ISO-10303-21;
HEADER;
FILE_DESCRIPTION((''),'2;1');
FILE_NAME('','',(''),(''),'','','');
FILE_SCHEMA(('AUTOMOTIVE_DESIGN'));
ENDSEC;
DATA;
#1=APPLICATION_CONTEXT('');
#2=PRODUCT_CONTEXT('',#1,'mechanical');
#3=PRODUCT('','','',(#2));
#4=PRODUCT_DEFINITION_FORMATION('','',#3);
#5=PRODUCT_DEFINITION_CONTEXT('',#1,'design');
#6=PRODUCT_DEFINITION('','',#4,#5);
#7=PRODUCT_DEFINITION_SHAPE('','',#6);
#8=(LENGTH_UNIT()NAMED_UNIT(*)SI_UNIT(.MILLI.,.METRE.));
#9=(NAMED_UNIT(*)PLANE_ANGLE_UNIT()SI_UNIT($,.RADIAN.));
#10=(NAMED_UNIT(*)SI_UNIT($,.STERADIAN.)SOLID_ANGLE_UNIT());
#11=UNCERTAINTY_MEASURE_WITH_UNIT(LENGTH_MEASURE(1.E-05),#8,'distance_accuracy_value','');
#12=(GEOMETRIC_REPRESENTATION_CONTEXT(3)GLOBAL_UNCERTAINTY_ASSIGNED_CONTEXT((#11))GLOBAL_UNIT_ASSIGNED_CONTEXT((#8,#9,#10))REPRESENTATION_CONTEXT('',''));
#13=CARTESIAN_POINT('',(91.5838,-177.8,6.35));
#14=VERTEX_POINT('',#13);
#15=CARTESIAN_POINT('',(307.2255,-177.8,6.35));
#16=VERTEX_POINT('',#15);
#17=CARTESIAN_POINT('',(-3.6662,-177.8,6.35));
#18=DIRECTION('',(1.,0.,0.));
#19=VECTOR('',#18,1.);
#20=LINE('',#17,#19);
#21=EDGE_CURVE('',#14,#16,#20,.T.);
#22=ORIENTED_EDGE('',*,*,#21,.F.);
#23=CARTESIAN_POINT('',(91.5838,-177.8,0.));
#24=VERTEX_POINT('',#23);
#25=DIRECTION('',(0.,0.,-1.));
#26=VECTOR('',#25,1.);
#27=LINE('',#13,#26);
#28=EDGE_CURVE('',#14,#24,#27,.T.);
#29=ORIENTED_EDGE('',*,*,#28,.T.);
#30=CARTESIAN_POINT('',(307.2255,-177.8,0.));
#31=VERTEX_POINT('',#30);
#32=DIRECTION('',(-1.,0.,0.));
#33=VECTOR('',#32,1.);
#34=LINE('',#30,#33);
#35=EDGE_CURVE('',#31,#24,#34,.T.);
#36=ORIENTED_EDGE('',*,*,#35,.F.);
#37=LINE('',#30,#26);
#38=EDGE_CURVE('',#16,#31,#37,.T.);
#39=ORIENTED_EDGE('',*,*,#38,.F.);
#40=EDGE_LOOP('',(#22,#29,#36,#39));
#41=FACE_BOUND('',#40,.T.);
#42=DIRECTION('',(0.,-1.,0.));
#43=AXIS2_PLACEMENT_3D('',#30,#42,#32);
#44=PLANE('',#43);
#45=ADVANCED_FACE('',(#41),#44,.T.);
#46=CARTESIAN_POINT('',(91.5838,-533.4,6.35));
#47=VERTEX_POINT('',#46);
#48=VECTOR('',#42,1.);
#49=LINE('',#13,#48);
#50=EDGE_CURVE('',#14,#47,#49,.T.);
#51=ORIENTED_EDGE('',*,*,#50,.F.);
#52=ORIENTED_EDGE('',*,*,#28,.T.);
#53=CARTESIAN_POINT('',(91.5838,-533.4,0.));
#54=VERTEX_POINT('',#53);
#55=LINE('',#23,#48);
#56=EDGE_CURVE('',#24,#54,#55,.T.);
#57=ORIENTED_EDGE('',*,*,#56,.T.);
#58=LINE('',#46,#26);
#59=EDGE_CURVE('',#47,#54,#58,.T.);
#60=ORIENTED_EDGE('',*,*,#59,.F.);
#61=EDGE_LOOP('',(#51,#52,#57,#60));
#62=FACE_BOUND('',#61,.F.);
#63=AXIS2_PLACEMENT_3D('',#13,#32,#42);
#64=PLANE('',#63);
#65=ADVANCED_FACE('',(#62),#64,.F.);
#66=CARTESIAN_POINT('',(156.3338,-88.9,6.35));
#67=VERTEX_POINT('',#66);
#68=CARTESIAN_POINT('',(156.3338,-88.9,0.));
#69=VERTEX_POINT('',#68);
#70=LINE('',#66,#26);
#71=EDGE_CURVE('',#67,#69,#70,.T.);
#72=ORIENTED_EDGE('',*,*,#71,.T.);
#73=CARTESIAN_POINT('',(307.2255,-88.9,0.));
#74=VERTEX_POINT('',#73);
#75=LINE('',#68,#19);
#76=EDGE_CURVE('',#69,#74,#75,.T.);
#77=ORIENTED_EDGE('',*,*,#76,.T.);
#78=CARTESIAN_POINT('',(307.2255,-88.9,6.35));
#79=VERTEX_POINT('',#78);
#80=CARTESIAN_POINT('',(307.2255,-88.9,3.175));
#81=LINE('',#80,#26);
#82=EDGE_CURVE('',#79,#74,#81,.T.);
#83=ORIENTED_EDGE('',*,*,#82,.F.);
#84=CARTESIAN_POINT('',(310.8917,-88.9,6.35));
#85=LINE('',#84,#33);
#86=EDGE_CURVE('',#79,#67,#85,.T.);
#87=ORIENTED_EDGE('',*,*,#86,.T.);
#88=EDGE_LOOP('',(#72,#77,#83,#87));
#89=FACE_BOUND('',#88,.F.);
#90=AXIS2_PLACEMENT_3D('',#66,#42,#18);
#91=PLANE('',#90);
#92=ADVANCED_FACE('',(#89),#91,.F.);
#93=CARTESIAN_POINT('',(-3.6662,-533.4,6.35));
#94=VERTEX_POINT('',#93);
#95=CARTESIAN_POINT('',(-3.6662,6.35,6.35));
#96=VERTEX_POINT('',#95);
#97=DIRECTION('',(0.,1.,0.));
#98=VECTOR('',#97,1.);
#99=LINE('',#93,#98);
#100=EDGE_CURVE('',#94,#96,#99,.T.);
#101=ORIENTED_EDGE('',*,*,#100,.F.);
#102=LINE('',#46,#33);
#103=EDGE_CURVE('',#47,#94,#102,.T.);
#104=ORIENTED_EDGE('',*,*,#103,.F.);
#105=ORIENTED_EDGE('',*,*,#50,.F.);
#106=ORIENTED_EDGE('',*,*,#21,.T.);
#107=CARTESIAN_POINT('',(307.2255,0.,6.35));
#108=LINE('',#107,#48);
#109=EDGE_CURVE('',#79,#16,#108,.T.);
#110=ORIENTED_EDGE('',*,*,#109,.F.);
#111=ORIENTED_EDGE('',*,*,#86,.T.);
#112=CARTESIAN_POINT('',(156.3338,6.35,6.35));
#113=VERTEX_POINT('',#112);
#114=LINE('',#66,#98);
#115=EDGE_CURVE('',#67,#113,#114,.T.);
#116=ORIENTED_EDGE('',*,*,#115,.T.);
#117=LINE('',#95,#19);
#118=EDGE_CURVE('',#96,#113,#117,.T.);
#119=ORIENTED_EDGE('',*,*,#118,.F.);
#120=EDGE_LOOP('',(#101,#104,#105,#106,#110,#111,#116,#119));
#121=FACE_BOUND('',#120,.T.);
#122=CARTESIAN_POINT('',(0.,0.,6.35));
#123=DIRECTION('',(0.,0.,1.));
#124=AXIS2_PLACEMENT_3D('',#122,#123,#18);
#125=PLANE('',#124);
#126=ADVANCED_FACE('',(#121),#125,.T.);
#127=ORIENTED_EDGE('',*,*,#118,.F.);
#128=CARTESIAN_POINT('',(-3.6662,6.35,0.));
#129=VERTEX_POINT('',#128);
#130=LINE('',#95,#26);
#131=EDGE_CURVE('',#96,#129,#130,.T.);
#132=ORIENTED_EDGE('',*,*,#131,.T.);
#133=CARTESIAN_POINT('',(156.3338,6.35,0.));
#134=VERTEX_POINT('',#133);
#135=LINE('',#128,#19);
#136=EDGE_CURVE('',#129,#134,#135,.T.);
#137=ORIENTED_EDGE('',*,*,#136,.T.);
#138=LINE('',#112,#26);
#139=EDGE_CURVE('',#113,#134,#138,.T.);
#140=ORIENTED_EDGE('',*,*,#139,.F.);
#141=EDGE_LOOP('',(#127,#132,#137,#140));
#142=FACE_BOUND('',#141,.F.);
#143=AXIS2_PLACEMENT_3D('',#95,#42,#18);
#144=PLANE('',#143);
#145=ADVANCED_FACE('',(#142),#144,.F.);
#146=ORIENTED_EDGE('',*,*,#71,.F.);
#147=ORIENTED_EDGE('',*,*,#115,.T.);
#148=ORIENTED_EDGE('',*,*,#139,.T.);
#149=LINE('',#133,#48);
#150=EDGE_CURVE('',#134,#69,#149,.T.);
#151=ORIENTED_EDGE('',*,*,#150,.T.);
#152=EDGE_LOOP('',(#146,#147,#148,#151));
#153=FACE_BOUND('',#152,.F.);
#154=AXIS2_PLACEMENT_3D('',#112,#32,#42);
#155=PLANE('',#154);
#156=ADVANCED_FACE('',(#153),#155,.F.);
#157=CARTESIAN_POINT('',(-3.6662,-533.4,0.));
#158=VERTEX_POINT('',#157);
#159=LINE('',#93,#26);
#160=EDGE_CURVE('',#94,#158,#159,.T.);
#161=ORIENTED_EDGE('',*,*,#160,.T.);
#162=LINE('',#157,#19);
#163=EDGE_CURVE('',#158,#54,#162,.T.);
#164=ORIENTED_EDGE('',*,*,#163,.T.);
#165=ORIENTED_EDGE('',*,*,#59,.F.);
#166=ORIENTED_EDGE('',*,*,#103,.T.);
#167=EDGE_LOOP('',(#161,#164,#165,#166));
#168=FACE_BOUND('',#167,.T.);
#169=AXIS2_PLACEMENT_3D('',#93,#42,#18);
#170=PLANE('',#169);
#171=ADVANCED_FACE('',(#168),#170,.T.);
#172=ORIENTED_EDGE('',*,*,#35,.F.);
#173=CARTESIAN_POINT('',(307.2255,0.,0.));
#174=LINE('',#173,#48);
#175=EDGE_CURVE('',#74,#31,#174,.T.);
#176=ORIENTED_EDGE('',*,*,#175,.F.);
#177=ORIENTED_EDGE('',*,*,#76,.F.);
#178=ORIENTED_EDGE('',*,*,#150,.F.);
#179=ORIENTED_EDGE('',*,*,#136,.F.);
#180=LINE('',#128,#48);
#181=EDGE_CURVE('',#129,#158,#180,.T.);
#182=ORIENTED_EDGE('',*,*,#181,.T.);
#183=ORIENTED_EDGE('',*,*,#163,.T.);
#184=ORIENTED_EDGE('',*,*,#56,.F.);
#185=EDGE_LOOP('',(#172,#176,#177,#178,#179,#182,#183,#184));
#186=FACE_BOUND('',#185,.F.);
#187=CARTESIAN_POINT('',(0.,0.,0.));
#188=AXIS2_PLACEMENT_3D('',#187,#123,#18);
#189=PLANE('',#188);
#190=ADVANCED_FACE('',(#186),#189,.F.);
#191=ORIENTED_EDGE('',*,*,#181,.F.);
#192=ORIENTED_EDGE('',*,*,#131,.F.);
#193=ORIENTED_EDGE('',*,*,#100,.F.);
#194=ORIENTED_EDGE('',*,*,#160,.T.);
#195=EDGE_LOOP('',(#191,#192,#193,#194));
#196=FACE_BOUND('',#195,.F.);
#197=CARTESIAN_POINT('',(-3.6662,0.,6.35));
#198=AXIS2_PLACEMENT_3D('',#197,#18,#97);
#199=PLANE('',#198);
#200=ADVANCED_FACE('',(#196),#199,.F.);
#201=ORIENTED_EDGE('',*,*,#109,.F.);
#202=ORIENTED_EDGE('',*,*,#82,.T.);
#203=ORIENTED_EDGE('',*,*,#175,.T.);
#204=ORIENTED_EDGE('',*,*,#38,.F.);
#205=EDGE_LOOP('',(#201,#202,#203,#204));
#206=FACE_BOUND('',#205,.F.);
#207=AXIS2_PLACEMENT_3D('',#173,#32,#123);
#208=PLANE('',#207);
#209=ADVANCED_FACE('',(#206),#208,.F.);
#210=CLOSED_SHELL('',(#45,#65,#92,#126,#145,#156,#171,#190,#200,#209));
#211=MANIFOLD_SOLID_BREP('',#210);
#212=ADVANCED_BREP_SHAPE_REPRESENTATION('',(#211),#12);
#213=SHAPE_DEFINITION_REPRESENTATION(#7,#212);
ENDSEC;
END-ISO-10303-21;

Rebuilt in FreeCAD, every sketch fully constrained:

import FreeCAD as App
import Part
import Sketcher

V = App.Vector
Q = App.Units.Quantity


def add_polygon(sketch, points):
    """Adds a closed chain of lines whose ends are joined by coincident constraints."""
    first, n = sketch.GeometryCount, len(points)
    for a, b in zip(points, points[1:] + points[:1]):
        sketch.addGeometry(Part.LineSegment(App.Vector(*a, 0), App.Vector(*b, 0)), False)
    for i in range(n):
        sketch.addConstraint(Sketcher.Constraint("Coincident", first + i, 2, first + (i + 1) % n, 1))

doc = App.newDocument("Part")
body = doc.addObject("PartDesign::Body", "Body")

# Sketch on XY plane
sketch1 = body.newObject("Sketcher::SketchObject", "Sketch")
sketch1.AttachmentSupport = (doc.getObject("XY_Plane"), [""])
sketch1.MapMode = "FlatFace"
add_polygon(sketch1, [(307.2255, 0), (0, 0), (0, -177.8), (307.2255, -177.8)])  # lines 0-3
sketch1.addConstraint([
    Sketcher.Constraint("Horizontal", 0),
    Sketcher.Constraint("Vertical", 1),
    Sketcher.Constraint("Horizontal", 2),
    Sketcher.Constraint("Vertical", 3),
    Sketcher.Constraint("Coincident", 0, 2, -1, 1),
    Sketcher.Constraint("DistanceY", 1, 2, 1, 1, Q("7 in")),
    Sketcher.Constraint("DistanceX", 0, 2, 0, 1, Q("12.0955 in")),
])
pad1 = body.newObject("PartDesign::Pad", "Pad")
pad1.Profile = sketch1
pad1.Length = Q("0.25 in")

# Sketch on XZ plane
sketch2 = body.newObject("Sketcher::SketchObject", "Sketch001")
sketch2.AttachmentSupport = (doc.getObject("XZ_Plane"), [""])
sketch2.MapMode = "FlatFace"
add_polygon(sketch2, [(-3.6662, 6.35), (0, 6.35), (0, 0)])  # lines 0-2
add_polygon(sketch2, [(307.2255, 0), (307.2255, 6.35), (310.8917, 6.35)])  # lines 3-5
sketch2.addConstraint([
    Sketcher.Constraint("Horizontal", 0),
    Sketcher.Constraint("Vertical", 1),
    Sketcher.Constraint("Vertical", 3),
    Sketcher.Constraint("Horizontal", 4),
    Sketcher.Constraint("Coincident", 1, 2, -1, 1),
    Sketcher.Constraint("PointOnObject", 5, 2, -1),
    Sketcher.Constraint("Horizontal", 2, 2, 3, 2),
    Sketcher.Constraint("Equal", 0, 4),
    Sketcher.Constraint("Angle", 2, Q("120.0002 deg")),
    Sketcher.Constraint("DistanceY", 1, 2, 1, 1, Q("0.25 in")),
    Sketcher.Constraint("DistanceX", -1, 1, 3, 2, Q("12.0955 in")),
])
pad2 = body.newObject("PartDesign::Pad", "Pad001")
pad2.Profile = sketch2
pad2.Length = Q("7 in")

# Sketch on XY plane
sketch3 = body.newObject("Sketcher::SketchObject", "Sketch002")
sketch3.AttachmentSupport = (doc.getObject("XY_Plane"), [""])
sketch3.MapMode = "FlatFace"
sketch3.AttachmentOffset = App.Placement(V(0, 0, 0.25 * 25.4), App.Rotation())
add_polygon(sketch3, [(156.3338, 0), (156.3338, -88.9), (281.3338, -88.9), (281.3338, 0)])  # lines 0-3
sketch3.addConstraint([
    Sketcher.Constraint("Vertical", 0),
    Sketcher.Constraint("Horizontal", 1),
    Sketcher.Constraint("Vertical", 2),
    Sketcher.Constraint("Horizontal", 3),
    Sketcher.Constraint("PointOnObject", 2, 2, -1),
    Sketcher.Constraint("DistanceY", 0, 2, 0, 1, Q("3.5 in")),
    Sketcher.Constraint("DistanceX", 1, 1, 1, 2, 125.0),
    Sketcher.Constraint("DistanceX", -1, 1, 0, 2, 156.3338),
])
pocket1 = body.newObject("PartDesign::Pocket", "Pocket")
pocket1.Profile = sketch3
pocket1.Type = "ThroughAll"

# Sketch on XY plane
sketch4 = body.newObject("Sketcher::SketchObject", "Sketch003")
sketch4.AttachmentSupport = (doc.getObject("XY_Plane"), [""])
sketch4.MapMode = "FlatFace"
sketch4.AttachmentOffset = App.Placement(V(0, 0, 0.25 * 25.4), App.Rotation())
add_polygon(sketch4, [(91.5838, -533.4), (91.5838, -177.8), (-3.6662, -177.8), (-3.6662, -533.4)])  # lines 0-3
sketch4.addConstraint([
    Sketcher.Constraint("Vertical", 0),
    Sketcher.Constraint("Horizontal", 1),
    Sketcher.Constraint("Vertical", 2),
    Sketcher.Constraint("Horizontal", 3),
    Sketcher.Constraint("DistanceY", 0, 1, 0, 2, Q("14 in")),
    Sketcher.Constraint("DistanceX", 1, 2, 1, 1, Q("3.75 in")),
    Sketcher.Constraint("DistanceY", 0, 2, -1, 1, Q("7 in")),
    Sketcher.Constraint("DistanceX", -1, 1, 0, 2, 91.5838),
])
pad3 = body.newObject("PartDesign::Pad", "Pad002")
pad3.Profile = sketch4
pad3.Length = Q("0.3937008 in")
pad3.Reversed = True

# Sketch on XZ plane
sketch5 = body.newObject("Sketcher::SketchObject", "Sketch004")
sketch5.AttachmentSupport = (doc.getObject("XZ_Plane"), [""])
sketch5.MapMode = "FlatFace"
sketch5.AttachmentOffset = App.Placement(V(0, 0, 7 * 25.4), App.Rotation())
add_polygon(sketch5, [(-3.6662, -3.65), (-3.6662, 6.35), (0, 0), (91.5838, 0), (91.5838, -3.65)])  # lines 0-4
sketch5.addConstraint([
    Sketcher.Constraint("Vertical", 0),
    Sketcher.Constraint("Horizontal", 2),
    Sketcher.Constraint("Vertical", 3),
    Sketcher.Constraint("Horizontal", 4),
    Sketcher.Constraint("Coincident", 1, 2, -1, 1),
    Sketcher.Constraint("Angle", 1, Q("-59.9998 deg")),
    Sketcher.Constraint("DistanceX", 4, 2, 4, 1, Q("3.75 in")),
    Sketcher.Constraint("DistanceY", -1, 1, 0, 2, Q("0.25 in")),
    Sketcher.Constraint("DistanceY", 0, 1, 0, 2, Q("0.3937 in")),
])
pocket2 = body.newObject("PartDesign::Pocket", "Pocket001")
pocket2.Profile = sketch5
pocket2.Type = "ThroughAll"
pocket2.Reversed = True

# Sketch on XY plane
sketch6 = body.newObject("Sketcher::SketchObject", "Sketch005")
sketch6.AttachmentSupport = (doc.getObject("XY_Plane"), [""])
sketch6.MapMode = "FlatFace"
sketch6.AttachmentOffset = App.Placement(V(0, 0, 0.25 * 25.4), App.Rotation())
add_polygon(sketch6, [(310.8917, -88.9), (310.8917, 0), (281.3338, 0), (281.3338, -88.9)])  # lines 0-3
sketch6.addConstraint([
    Sketcher.Constraint("Vertical", 0),
    Sketcher.Constraint("Horizontal", 1),
    Sketcher.Constraint("Vertical", 2),
    Sketcher.Constraint("Horizontal", 3),
    Sketcher.Constraint("PointOnObject", 0, 2, -1),
    Sketcher.Constraint("DistanceY", 0, 1, 0, 2, Q("3.5 in")),
    Sketcher.Constraint("DistanceX", 1, 2, 1, 1, Q("1.1637 in")),
    Sketcher.Constraint("DistanceX", -1, 1, 0, 2, 310.8917),
])
pocket3 = body.newObject("PartDesign::Pocket", "Pocket002")
pocket3.Profile = sketch6
pocket3.Type = "ThroughAll"

# Sketch on XZ plane
sketch7 = body.newObject("Sketcher::SketchObject", "Sketch006")
sketch7.AttachmentSupport = (doc.getObject("XZ_Plane"), [""])
sketch7.MapMode = "FlatFace"
add_polygon(sketch7, [(0, 6.35), (0, 0), (-3.6662, 6.35)])  # lines 0-2
add_polygon(sketch7, [(310.8917, 6.35), (307.2255, 0), (307.2255, 6.35)])  # lines 3-5
sketch7.addConstraint([
    Sketcher.Constraint("Vertical", 0),
    Sketcher.Constraint("Horizontal", 2),
    Sketcher.Constraint("Vertical", 4),
    Sketcher.Constraint("Horizontal", 5),
    Sketcher.Constraint("Coincident", 0, 2, -1, 1),
    Sketcher.Constraint("PointOnObject", 3, 2, -1),
    Sketcher.Constraint("Horizontal", 2, 2, 4, 2),
    Sketcher.Constraint("Equal", 2, 5),
    Sketcher.Constraint("Angle", 1, Q("120.0002 deg")),
    Sketcher.Constraint("DistanceY", 0, 2, 0, 1, Q("0.25 in")),
    Sketcher.Constraint("DistanceX", -1, 1, 3, 2, Q("12.0955 in")),
])
pocket4 = body.newObject("PartDesign::Pocket", "Pocket003")
pocket4.Profile = sketch7
pocket4.Type = "ThroughAll"
pocket4.Reversed = True

# Sketch on XY plane
sketch8 = body.newObject("Sketcher::SketchObject", "Sketch007")
sketch8.AttachmentSupport = (doc.getObject("XY_Plane"), [""])
sketch8.MapMode = "FlatFace"
sketch8.AttachmentOffset = App.Placement(V(0, 0, 0.25 * 25.4), App.Rotation())
add_polygon(sketch8, [(0, -533.4), (0, 0), (-3.6662, 0), (-3.6662, -533.4)])  # lines 0-3
sketch8.addConstraint([
    Sketcher.Constraint("Vertical", 0),
    Sketcher.Constraint("Horizontal", 1),
    Sketcher.Constraint("Vertical", 2),
    Sketcher.Constraint("Horizontal", 3),
    Sketcher.Constraint("Coincident", 0, 2, -1, 1),
    Sketcher.Constraint("DistanceY", 0, 1, 0, 2, Q("21 in")),
    Sketcher.Constraint("DistanceX", 1, 2, 1, 1, 3.6662),
])
pad4 = body.newObject("PartDesign::Pad", "Pad003")
pad4.Profile = sketch8
pad4.Length = Q("0.25 in")
pad4.Reversed = True

# Sketch on XY plane
sketch9 = body.newObject("Sketcher::SketchObject", "Sketch008")
sketch9.AttachmentSupport = (doc.getObject("XY_Plane"), [""])
sketch9.MapMode = "FlatFace"
sketch9.AttachmentOffset = App.Placement(V(0, 0, 0.25 * 25.4), App.Rotation())
add_polygon(sketch9, [(-3.6662, 6.35), (-3.6662, 0), (156.3338, 0), (156.3338, 6.35)])  # lines 0-3
sketch9.addConstraint([
    Sketcher.Constraint("Vertical", 0),
    Sketcher.Constraint("Horizontal", 1),
    Sketcher.Constraint("Vertical", 2),
    Sketcher.Constraint("Horizontal", 3),
    Sketcher.Constraint("PointOnObject", 0, 2, -1),
    Sketcher.Constraint("DistanceY", 0, 2, 0, 1, Q("0.25 in")),
    Sketcher.Constraint("DistanceX", 1, 1, 1, 2, 160.0),
    Sketcher.Constraint("DistanceX", 0, 2, -1, 1, 3.6662),
])
pad5 = body.newObject("PartDesign::Pad", "Pad004")
pad5.Profile = sketch9
pad5.Length = Q("0.25 in")
pad5.Reversed = True

doc.recompute()
